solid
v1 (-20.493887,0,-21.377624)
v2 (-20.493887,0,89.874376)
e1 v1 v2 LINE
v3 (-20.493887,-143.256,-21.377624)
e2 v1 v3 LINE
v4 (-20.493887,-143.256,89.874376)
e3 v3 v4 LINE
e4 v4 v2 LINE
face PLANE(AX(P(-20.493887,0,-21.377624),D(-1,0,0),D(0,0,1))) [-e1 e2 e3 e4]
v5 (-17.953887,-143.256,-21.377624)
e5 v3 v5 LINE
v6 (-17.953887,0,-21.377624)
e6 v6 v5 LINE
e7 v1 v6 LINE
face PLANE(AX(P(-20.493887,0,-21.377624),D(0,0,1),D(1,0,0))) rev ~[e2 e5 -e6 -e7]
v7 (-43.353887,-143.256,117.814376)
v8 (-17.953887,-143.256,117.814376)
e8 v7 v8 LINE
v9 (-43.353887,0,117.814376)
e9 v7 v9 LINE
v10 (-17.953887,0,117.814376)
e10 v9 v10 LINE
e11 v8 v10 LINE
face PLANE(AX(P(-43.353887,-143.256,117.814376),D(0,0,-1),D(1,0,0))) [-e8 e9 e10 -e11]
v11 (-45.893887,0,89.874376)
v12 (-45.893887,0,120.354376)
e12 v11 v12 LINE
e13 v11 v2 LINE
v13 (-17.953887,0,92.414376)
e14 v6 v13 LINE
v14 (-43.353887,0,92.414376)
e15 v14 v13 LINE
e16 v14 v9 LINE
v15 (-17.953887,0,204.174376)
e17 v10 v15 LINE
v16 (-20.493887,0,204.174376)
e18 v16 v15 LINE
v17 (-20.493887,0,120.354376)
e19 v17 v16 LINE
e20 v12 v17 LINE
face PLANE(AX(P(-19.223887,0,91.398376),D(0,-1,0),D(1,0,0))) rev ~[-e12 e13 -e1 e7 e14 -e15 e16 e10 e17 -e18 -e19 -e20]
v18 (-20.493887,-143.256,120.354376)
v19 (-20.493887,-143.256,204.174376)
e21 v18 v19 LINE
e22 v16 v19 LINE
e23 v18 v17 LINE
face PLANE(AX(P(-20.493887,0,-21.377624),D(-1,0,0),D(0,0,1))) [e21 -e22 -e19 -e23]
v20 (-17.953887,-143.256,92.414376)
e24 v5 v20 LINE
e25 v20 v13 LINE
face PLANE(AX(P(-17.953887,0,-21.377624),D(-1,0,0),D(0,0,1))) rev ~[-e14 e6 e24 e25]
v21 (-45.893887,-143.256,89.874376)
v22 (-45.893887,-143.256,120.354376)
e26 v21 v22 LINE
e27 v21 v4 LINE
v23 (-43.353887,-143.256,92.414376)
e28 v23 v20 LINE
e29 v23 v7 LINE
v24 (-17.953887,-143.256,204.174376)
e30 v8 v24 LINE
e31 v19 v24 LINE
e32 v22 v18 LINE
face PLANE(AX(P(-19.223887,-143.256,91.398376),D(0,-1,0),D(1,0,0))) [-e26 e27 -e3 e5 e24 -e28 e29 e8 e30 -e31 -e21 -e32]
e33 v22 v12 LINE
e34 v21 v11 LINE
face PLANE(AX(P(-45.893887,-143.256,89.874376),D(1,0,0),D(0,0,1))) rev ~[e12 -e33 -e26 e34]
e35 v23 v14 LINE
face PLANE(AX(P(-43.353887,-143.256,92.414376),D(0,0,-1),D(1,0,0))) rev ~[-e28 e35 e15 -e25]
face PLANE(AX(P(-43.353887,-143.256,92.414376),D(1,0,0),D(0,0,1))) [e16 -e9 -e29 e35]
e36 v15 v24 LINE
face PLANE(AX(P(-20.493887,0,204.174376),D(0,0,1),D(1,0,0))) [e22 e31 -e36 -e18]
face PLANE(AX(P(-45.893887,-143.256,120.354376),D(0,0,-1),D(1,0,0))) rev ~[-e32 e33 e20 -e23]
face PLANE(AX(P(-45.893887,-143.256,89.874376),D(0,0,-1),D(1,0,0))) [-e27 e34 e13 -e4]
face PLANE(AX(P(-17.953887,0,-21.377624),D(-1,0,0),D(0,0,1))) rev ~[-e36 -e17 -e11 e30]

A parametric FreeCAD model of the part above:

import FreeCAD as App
import Part
import Sketcher

V = App.Vector
Q = App.Units.Quantity


def add_polygon(sketch, points):
    """Adds a closed chain of lines whose ends are joined by coincident constraints."""
    first, n = sketch.GeometryCount, len(points)
    for a, b in zip(points, points[1:] + points[:1]):
        sketch.addGeometry(Part.LineSegment(App.Vector(*a, 0), App.Vector(*b, 0)), False)
    for i in range(n):
        sketch.addConstraint(Sketcher.Constraint("Coincident", first + i, 2, first + (i + 1) % n, 1))

doc = App.newDocument("Part")
body = doc.addObject("PartDesign::Body", "Body")

# Sketch on XZ plane
sketch1 = doc.addObject("Sketcher::SketchObject", "Sketch")
body.addObject(sketch1)
sketch1.AttachmentSupport = (doc.XZ_Plane, [""])
sketch1.MapMode = "FlatFace"
add_polygon(sketch1, [(-20.5, 204.2), (-20.5, -21.4), (-18, -21.4), (-18, 204.2)])  # lines 0-3
sketch1.addConstraint([
    Sketcher.Constraint("Vertical", 0),
    Sketcher.Constraint("Horizontal", 1),
    Sketcher.Constraint("Vertical", 2),
    Sketcher.Constraint("Horizontal", 3),
    Sketcher.Constraint("DistanceX", 1, 1, 1, 2, Q("0.1 in")),
    Sketcher.Constraint("DistanceY", 0, 2, 0, 1, Q("8.88 in")),
    Sketcher.Constraint("DistanceX", 0, 2, -1, 1, 20.493887),
    Sketcher.Constraint("DistanceY", 0, 2, -1, 1, 21.377624),
])
pad1 = doc.addObject("PartDesign::Pad", "Pad")
body.addObject(pad1)
pad1.Profile = sketch1
pad1.Length = Q("5.64 in")

# Sketch on XZ plane
sketch2 = doc.addObject("Sketcher::SketchObject", "Sketch001")
body.addObject(sketch2)
sketch2.AttachmentSupport = (doc.XZ_Plane, [""])
sketch2.MapMode = "FlatFace"
sketch2.AttachmentOffset = App.Placement(V(0, 0, 5.64 * 25.4), App.Rotation())
add_polygon(sketch2, [(-46, 120), (-46, 90), (-20, 90), (-20, 120)])  # lines 0-3
sketch2.addConstraint([
    Sketcher.Constraint("Vertical", 0),
    Sketcher.Constraint("Horizontal", 1),
    Sketcher.Constraint("Vertical", 2),
    Sketcher.Constraint("Horizontal", 3),
    Sketcher.Constraint("DistanceX", 1, 1, 1, 2, Q("1 in")),
    Sketcher.Constraint("DistanceY", 0, 2, 0, 1, Q("1.2 in")),
    Sketcher.Constraint("DistanceX", 0, 2, -1, 1, 45.893887),
    Sketcher.Constraint("DistanceY", -1, 1, 0, 2, 89.874376),
])
pad2 = doc.addObject("PartDesign::Pad", "Pad001")
body.addObject(pad2)
pad2.Profile = sketch2
pad2.Length = Q("5.64 in")
pad2.Reversed = True

# Sketch on XZ plane
sketch3 = doc.addObject("Sketcher::SketchObject", "Sketch002")
body.addObject(sketch3)
sketch3.AttachmentSupport = (doc.XZ_Plane, [""])
sketch3.MapMode = "FlatFace"
sketch3.AttachmentOffset = App.Placement(V(0, 0, 5.64 * 25.4), App.Rotation())
add_polygon(sketch3, [(-43, 118), (-43, 92), (-18, 92), (-18, 118)])  # lines 0-3
sketch3.addConstraint([
    Sketcher.Constraint("Vertical", 0),
    Sketcher.Constraint("Horizontal", 1),
    Sketcher.Constraint("Vertical", 2),
    Sketcher.Constraint("Horizontal", 3),
    Sketcher.Constraint("Equal", 3, 0),
    Sketcher.Constraint("DistanceX", 1, 1, 1, 2, Q("1 in")),
    Sketcher.Constraint("DistanceX", 0, 2, -1, 1, 43.353887),
    Sketcher.Constraint("DistanceY", -1, 1, 0, 2, 92.414376),
])
pocket1 = doc.addObject("PartDesign::Pocket", "Pocket")
body.addObject(pocket1)
pocket1.Profile = sketch3
pocket1.Length = Q("7 in")

doc.recompute()
